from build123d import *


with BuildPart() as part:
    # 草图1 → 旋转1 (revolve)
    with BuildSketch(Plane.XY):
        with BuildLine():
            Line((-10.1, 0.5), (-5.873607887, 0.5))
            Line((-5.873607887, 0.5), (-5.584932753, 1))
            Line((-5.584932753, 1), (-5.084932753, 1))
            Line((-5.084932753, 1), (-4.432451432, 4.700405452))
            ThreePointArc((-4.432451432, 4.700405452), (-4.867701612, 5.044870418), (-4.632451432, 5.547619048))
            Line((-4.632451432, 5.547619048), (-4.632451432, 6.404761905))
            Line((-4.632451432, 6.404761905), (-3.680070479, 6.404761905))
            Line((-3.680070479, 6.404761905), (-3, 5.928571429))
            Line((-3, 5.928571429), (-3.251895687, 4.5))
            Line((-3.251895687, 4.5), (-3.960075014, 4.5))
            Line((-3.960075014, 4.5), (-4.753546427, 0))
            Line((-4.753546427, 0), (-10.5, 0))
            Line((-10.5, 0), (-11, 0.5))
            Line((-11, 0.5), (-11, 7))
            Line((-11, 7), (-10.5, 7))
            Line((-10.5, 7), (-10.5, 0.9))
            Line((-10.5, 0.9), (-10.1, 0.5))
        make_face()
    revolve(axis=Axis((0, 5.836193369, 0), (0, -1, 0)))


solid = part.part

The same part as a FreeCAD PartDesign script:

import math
import FreeCAD as App
import Part
import Sketcher
from FreeCAD import Vector
Q = App.Units.Quantity

doc = App.newDocument("Part")
body = doc.addObject("PartDesign::Body", "Body")

sketch1 = body.newObject("Sketcher::SketchObject", "Sketch")
sketch1.AttachmentSupport = (doc.getObject("XY_Plane"), [""])
sketch1.MapMode = "FlatFace"
sketch1.addGeometry(Part.LineSegment(Vector(-5.87, 0.5, 0), Vector(-10.1, 0.5, 0)), False)
sketch1.addGeometry(Part.LineSegment(Vector(-10.1, 0.5, 0), Vector(-10.5, 0.9, 0)), False)
sketch1.addGeometry(Part.LineSegment(Vector(-10.5, 0.9, 0), Vector(-10.5, 7, 0)), False)
sketch1.addGeometry(Part.LineSegment(Vector(-10.5, 7, 0), Vector(-11, 7, 0)), False)
sketch1.addGeometry(Part.LineSegment(Vector(-11, 7, 0), Vector(-11, 0.5, 0)), False)
sketch1.addGeometry(Part.LineSegment(Vector(-11, 0.5, 0), Vector(-10.5, 0, 0)), False)
sketch1.addGeometry(Part.LineSegment(Vector(-10.5, 0, 0), Vector(-4.75, 0, 0)), False)
sketch1.addGeometry(Part.LineSegment(Vector(-4.75, 0, 0), Vector(-3.96, 4.5, 0)), False)
sketch1.addGeometry(Part.LineSegment(Vector(-3.96, 4.5, 0), Vector(-3.25, 4.5, 0)), False)
sketch1.addGeometry(Part.LineSegment(Vector(-3.25, 4.5, 0), Vector(-3, 5.93, 0)), False)
sketch1.addGeometry(Part.LineSegment(Vector(-3, 5.93, 0), Vector(-3.68, 6.4, 0)), False)
sketch1.addGeometry(Part.LineSegment(Vector(-3.68, 6.4, 0), Vector(-4.63, 6.4, 0)), False)
sketch1.addGeometry(Part.LineSegment(Vector(-4.63, 6.4, 0), Vector(-4.63, 5.55, 0)), False)
sketch1.addGeometry(Part.ArcOfCircle(Part.Circle(Vector(-4.43, 5.15, 0), Vector(0, 0, 1), 0.45), math.radians(117), math.radians(270)), False)
sketch1.addGeometry(Part.LineSegment(Vector(-4.43, 4.7, 0), Vector(-5.08, 1, 0)), False)
sketch1.addGeometry(Part.LineSegment(Vector(-5.08, 1, 0), Vector(-5.58, 1, 0)), False)
sketch1.addGeometry(Part.LineSegment(Vector(-5.58, 1, 0), Vector(-5.87, 0.5, 0)), False)
sketch1.addConstraint(Sketcher.Constraint("Coincident", 0, 2, 1, 1))
sketch1.addConstraint(Sketcher.Constraint("Coincident", 1, 2, 2, 1))
sketch1.addConstraint(Sketcher.Constraint("Coincident", 2, 2, 3, 1))
sketch1.addConstraint(Sketcher.Constraint("Coincident", 3, 2, 4, 1))
sketch1.addConstraint(Sketcher.Constraint("Coincident", 4, 2, 5, 1))
sketch1.addConstraint(Sketcher.Constraint("Coincident", 5, 2, 6, 1))
sketch1.addConstraint(Sketcher.Constraint("Coincident", 6, 2, 7, 1))
sketch1.addConstraint(Sketcher.Constraint("Coincident", 7, 2, 8, 1))
sketch1.addConstraint(Sketcher.Constraint("Coincident", 8, 2, 9, 1))
sketch1.addConstraint(Sketcher.Constraint("Coincident", 9, 2, 10, 1))
sketch1.addConstraint(Sketcher.Constraint("Coincident", 10, 2, 11, 1))
sketch1.addConstraint(Sketcher.Constraint("Coincident", 11, 2, 12, 1))
sketch1.addConstraint(Sketcher.Constraint("Coincident", 12, 2, 13, 1))
sketch1.addConstraint(Sketcher.Constraint("Coincident", 13, 2, 14, 1))
sketch1.addConstraint(Sketcher.Constraint("Coincident", 14, 2, 15, 1))
sketch1.addConstraint(Sketcher.Constraint("Coincident", 15, 2, 16, 1))
sketch1.addConstraint(Sketcher.Constraint("Coincident", 16, 2, 0, 1))
sketch1.addConstraint(Sketcher.Constraint("Horizontal", 0))
sketch1.addConstraint(Sketcher.Constraint("Vertical", 2))
sketch1.addConstraint(Sketcher.Constraint("Horizontal", 3))
sketch1.addConstraint(Sketcher.Constraint("Vertical", 4))
sketch1.addConstraint(Sketcher.Constraint("Horizontal", 6))
sketch1.addConstraint(Sketcher.Constraint("Horizontal", 8))
sketch1.addConstraint(Sketcher.Constraint("Horizontal", 11))
sketch1.addConstraint(Sketcher.Constraint("Vertical", 12))
sketch1.addConstraint(Sketcher.Constraint("Horizontal", 15))
sketch1.addConstraint(Sketcher.Constraint("PointOnObject", 5, 2, -1))
sketch1.addConstraint(Sketcher.Constraint("Parallel", 1, 5))
sketch1.addConstraint(Sketcher.Constraint("Parallel", 7, 9))
sketch1.addConstraint(Sketcher.Constraint("Parallel", 9, 14))
sketch1.addConstraint(Sketcher.Constraint("Horizontal", 0, 2, 4, 2))
sketch1.addConstraint(Sketcher.Constraint("Vertical", 2, 2, 5, 2))
sketch1.addConstraint(Sketcher.Constraint("Equal", 3, 15))
sketch1.addConstraint(Sketcher.Constraint("Angle", 1, Q("135 deg")))
sketch1.addConstraint(Sketcher.Constraint("Angle", 7, Q("80 deg")))
sketch1.addConstraint(Sketcher.Constraint("Angle", 10, Q("145 deg")))
sketch1.addConstraint(Sketcher.Constraint("Angle", 16, Q("-120 deg")))
sketch1.addConstraint(Sketcher.Constraint("DistanceX", 3, 2, 3, 1, Q("0.5 mm")))
sketch1.addConstraint(Sketcher.Constraint("DistanceY", 2, 1, 2, 2, Q("6.1 mm")))
sketch1.addConstraint(Sketcher.Constraint("DistanceY", 4, 2, 4, 1, Q("6.5 mm")))
sketch1.addConstraint(Sketcher.Constraint("DistanceX", 3, 2, -1, 1, Q("11 mm")))
sketch1.addConstraint(Sketcher.Constraint("DistanceX", 9, 2, -1, 1, Q("3 mm")))
sketch1.addConstraint(Sketcher.Constraint("DistanceY", -1, 1, 14, 2, Q("1 mm")))
sketch1.addConstraint(Sketcher.Constraint("DistanceY", 0, 2, 7, 2, Q("4 mm")))
sketch1.addConstraint(Sketcher.Constraint("DistanceX", 11, 2, 13, 3, Q("0.2 mm")))
sketch1.addConstraint(Sketcher.Constraint("DistanceY", 13, 3, 12, 2, Q("0.4 mm")))
sketch1.addConstraint(Sketcher.Constraint("DistanceX", 12, 2, 13, 2, Q("0.2 mm")))
sketch1.addConstraint(Sketcher.Constraint("DistanceX", 8, 1, 8, 2, Q("0.708179 mm")))
sketch1.addConstraint(Sketcher.Constraint("DistanceX", 11, 2, 11, 1, Q("0.952381 mm")))
sketch1.addConstraint(Sketcher.Constraint("Distance", 9, Q("1.450609 mm")))
sketch1.addConstraint(Sketcher.Constraint("Distance", 14, Q("3.75749 mm")))
sketch1.addConstraint(Sketcher.Constraint("DistanceX", 0, 2, 0, 1, Q("4.226392 mm")))
revolution = body.newObject("PartDesign::Revolution", "Revolution")
revolution.Profile = sketch1
revolution.ReferenceAxis = (sketch1, ["V_Axis"])
revolution.Angle = 360

doc.recompute()
